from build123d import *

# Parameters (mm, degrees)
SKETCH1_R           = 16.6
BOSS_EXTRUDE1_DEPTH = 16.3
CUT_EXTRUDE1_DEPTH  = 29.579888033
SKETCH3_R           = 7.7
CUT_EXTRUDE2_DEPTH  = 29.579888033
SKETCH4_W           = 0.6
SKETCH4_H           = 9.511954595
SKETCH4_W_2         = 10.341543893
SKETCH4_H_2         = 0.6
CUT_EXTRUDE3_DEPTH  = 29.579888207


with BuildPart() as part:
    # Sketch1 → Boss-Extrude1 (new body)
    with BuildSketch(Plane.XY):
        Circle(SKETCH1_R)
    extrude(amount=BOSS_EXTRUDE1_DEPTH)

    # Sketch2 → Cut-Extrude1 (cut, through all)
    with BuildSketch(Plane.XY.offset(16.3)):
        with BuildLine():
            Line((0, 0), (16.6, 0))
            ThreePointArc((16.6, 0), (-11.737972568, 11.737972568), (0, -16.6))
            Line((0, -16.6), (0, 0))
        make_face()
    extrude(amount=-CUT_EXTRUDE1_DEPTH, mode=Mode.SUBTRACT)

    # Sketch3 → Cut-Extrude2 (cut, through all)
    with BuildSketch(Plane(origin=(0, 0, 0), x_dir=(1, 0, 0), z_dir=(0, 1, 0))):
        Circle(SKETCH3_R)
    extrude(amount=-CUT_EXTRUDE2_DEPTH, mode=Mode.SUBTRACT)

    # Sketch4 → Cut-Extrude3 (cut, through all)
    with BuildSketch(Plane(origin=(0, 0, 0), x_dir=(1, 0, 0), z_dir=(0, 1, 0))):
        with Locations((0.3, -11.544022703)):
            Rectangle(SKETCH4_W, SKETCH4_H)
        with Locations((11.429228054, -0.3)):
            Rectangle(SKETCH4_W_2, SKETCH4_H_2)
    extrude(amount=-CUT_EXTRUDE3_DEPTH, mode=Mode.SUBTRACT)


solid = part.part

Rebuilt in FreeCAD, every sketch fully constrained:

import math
import FreeCAD as App
import Part
import Sketcher


def add_polygon(sketch, points):
    """Adds a closed chain of lines whose ends are joined by coincident constraints."""
    first, n = sketch.GeometryCount, len(points)
    for a, b in zip(points, points[1:] + points[:1]):
        sketch.addGeometry(Part.LineSegment(App.Vector(*a, 0), App.Vector(*b, 0)), False)
    for i in range(n):
        sketch.addConstraint(Sketcher.Constraint("Coincident", first + i, 2, first + (i + 1) % n, 1))

doc = App.newDocument("Part")
body = doc.addObject("PartDesign::Body", "Body")

# Sketch on XY plane
sketch1 = body.newObject("Sketcher::SketchObject", "Sketch")
sketch1.AttachmentSupport = (doc.getObject("XY_Plane"), [""])
sketch1.MapMode = "FlatFace"
sketch1.addGeometry(Part.Circle(App.Vector(0, 0, 0), App.Vector(0, 0, 1), 17), False)
sketch1.addConstraint(Sketcher.Constraint("Coincident", 0, 3, -1, 1))
sketch1.addConstraint(Sketcher.Constraint("Diameter", 0, 33.2))
pad1 = body.newObject("PartDesign::Pad", "Pad")
pad1.Profile = sketch1
pad1.Length = 16.3

# Sketch on XY plane
sketch2 = body.newObject("Sketcher::SketchObject", "Sketch001")
sketch2.AttachmentSupport = (doc.getObject("XY_Plane"), [""])
sketch2.MapMode = "FlatFace"
sketch2.AttachmentOffset = App.Placement(App.Vector(0, 0, 16.3), App.Rotation())
sketch2.addGeometry(Part.LineSegment(App.Vector(0, 0, 0), App.Vector(17, 0, 0)), False)
sketch2.addGeometry(Part.ArcOfCircle(Part.Circle(App.Vector(0, 0, 0), App.Vector(0, 0, 1), 17), math.radians(0), math.radians(270)), False)
sketch2.addGeometry(Part.LineSegment(App.Vector(0, -17, 0), App.Vector(0, 0, 0)), False)
sketch2.addConstraint(Sketcher.Constraint("Coincident", 0, 2, 1, 1))
sketch2.addConstraint(Sketcher.Constraint("Coincident", 1, 2, 2, 1))
sketch2.addConstraint(Sketcher.Constraint("Coincident", 2, 2, 0, 1))
sketch2.addConstraint(Sketcher.Constraint("Horizontal", 0))
sketch2.addConstraint(Sketcher.Constraint("Vertical", 2))
sketch2.addConstraint(Sketcher.Constraint("Coincident", 1, 3, -1, 1))
sketch2.addConstraint(Sketcher.Constraint("Coincident", 2, 2, -1, 1))
sketch2.addConstraint(Sketcher.Constraint("Radius", 1, 16.6))
pocket1 = body.newObject("PartDesign::Pocket", "Pocket")
pocket1.Profile = sketch2
pocket1.Type = "ThroughAll"

# Sketch on XZ plane
sketch3 = body.newObject("Sketcher::SketchObject", "Sketch002")
sketch3.AttachmentSupport = (doc.getObject("XZ_Plane"), [""])
sketch3.MapMode = "FlatFace"
sketch3.addGeometry(Part.Circle(App.Vector(0, 0, 0), App.Vector(0, 0, 1), 8), False)
sketch3.addConstraint(Sketcher.Constraint("Coincident", 0, 3, -1, 1))
sketch3.addConstraint(Sketcher.Constraint("Diameter", 0, 15.4))
pocket2 = body.newObject("PartDesign::Pocket", "Pocket001")
pocket2.Profile = sketch3
pocket2.Type = "ThroughAll"
pocket2.Reversed = True

# Sketch on XZ plane
sketch4 = body.newObject("Sketcher::SketchObject", "Sketch003")
sketch4.AttachmentSupport = (doc.getObject("XZ_Plane"), [""])
sketch4.MapMode = "FlatFace"
add_polygon(sketch4, [(0, 6.8), (0, 16.3), (0.6, 16.3), (0.6, 6.8)])  # lines 0-3
add_polygon(sketch4, [(6.3, 0), (6.3, 0.6), (16.6, 0.6), (16.6, 0)])  # lines 4-7
sketch4.addConstraint(Sketcher.Constraint("Vertical", 0))
sketch4.addConstraint(Sketcher.Constraint("Horizontal", 1))
sketch4.addConstraint(Sketcher.Constraint("Vertical", 2))
sketch4.addConstraint(Sketcher.Constraint("Horizontal", 3))
sketch4.addConstraint(Sketcher.Constraint("Vertical", 4))
sketch4.addConstraint(Sketcher.Constraint("Horizontal", 5))
sketch4.addConstraint(Sketcher.Constraint("Vertical", 6))
sketch4.addConstraint(Sketcher.Constraint("Horizontal", 7))
sketch4.addConstraint(Sketcher.Constraint("PointOnObject", 0, 2, -2))
sketch4.addConstraint(Sketcher.Constraint("PointOnObject", 6, 2, -1))
sketch4.addConstraint(Sketcher.Constraint("Equal", 3, 4))
sketch4.addConstraint(Sketcher.Constraint("DistanceX", 1, 1, 1, 2, 0.6))
sketch4.addConstraint(Sketcher.Constraint("DistanceX", 2, 2, 5, 2, 16.0))
sketch4.addConstraint(Sketcher.Constraint("DistanceY", -1, 1, 0, 2, 16.3))
sketch4.addConstraint(Sketcher.Constraint("DistanceX", 5, 1, 5, 2, 10.341544))
sketch4.addConstraint(Sketcher.Constraint("DistanceY", 0, 1, 0, 2, 9.511955))
pocket3 = body.newObject("PartDesign::Pocket", "Pocket002")
pocket3.Profile = sketch4
pocket3.Type = "ThroughAll"
pocket3.Reversed = True

doc.recompute()
